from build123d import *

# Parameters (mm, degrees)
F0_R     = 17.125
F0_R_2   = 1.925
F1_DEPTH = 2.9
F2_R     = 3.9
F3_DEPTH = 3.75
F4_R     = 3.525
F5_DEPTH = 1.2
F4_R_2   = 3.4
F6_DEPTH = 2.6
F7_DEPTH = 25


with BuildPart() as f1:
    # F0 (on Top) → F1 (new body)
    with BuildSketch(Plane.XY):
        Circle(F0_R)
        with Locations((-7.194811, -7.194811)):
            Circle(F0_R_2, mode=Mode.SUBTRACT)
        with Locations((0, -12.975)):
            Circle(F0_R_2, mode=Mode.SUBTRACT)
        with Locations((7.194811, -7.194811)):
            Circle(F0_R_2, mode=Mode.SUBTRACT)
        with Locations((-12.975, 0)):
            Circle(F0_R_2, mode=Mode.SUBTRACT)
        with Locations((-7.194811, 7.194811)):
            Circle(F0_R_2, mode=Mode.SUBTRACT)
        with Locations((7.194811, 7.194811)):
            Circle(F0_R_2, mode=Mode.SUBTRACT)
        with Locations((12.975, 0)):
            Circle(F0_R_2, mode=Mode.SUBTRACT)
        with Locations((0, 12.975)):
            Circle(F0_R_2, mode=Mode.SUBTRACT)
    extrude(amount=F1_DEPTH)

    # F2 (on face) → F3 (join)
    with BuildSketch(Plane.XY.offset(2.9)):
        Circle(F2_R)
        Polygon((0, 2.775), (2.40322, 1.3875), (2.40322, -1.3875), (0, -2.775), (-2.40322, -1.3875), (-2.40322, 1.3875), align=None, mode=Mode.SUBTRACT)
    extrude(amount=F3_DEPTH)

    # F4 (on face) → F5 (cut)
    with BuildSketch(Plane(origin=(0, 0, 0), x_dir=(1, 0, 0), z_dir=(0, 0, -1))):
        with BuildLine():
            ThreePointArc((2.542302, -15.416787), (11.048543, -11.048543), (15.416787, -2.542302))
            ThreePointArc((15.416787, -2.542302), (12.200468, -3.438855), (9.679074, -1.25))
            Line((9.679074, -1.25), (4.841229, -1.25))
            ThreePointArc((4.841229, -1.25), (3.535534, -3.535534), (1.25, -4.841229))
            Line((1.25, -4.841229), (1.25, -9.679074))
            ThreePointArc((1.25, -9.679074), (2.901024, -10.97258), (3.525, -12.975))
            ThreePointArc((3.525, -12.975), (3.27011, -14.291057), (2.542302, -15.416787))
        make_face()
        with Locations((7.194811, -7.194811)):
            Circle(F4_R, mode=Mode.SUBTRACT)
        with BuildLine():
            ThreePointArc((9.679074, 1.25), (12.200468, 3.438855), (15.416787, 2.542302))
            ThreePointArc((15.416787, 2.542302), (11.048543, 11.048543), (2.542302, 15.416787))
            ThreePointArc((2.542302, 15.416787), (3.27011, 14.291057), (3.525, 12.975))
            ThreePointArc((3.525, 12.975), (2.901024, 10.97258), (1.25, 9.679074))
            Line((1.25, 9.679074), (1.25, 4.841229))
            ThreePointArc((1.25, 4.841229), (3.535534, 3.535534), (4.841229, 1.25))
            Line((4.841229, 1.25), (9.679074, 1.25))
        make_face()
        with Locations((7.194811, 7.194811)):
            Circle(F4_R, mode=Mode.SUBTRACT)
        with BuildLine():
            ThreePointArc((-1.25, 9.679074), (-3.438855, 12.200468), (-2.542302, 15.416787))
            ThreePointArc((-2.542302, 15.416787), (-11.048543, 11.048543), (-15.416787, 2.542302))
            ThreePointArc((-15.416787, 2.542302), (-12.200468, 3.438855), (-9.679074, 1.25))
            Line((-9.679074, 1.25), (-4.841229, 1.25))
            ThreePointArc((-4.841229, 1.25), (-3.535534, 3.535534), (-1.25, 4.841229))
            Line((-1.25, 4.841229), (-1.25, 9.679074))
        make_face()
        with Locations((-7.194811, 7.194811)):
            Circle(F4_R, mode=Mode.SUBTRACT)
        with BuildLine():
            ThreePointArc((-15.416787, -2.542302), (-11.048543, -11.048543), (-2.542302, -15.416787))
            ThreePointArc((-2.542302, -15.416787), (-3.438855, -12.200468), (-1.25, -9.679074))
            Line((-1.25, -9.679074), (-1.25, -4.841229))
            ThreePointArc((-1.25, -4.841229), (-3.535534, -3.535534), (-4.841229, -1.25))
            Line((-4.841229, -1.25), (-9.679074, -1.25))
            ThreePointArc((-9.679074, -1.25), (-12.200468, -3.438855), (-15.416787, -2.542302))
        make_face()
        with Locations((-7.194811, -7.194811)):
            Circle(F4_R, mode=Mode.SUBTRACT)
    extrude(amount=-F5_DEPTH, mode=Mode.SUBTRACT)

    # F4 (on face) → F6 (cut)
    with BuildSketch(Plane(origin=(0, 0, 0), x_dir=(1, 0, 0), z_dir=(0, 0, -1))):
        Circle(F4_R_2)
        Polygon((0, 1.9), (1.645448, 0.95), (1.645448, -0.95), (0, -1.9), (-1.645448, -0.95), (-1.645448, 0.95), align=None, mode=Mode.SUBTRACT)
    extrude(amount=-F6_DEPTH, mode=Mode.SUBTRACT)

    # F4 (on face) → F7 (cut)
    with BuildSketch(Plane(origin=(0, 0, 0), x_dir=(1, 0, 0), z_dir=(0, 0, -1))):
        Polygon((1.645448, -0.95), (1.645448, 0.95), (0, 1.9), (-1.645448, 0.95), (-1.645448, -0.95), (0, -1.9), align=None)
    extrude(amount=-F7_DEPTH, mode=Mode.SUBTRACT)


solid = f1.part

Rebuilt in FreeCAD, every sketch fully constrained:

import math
import FreeCAD as App
import Part
import Sketcher

V = App.Vector
Q = App.Units.Quantity


def add_polygon(sketch, points):
    """Adds a closed chain of lines whose ends are joined by coincident constraints."""
    first, n = sketch.GeometryCount, len(points)
    for a, b in zip(points, points[1:] + points[:1]):
        sketch.addGeometry(Part.LineSegment(App.Vector(*a, 0), App.Vector(*b, 0)), False)
    for i in range(n):
        sketch.addConstraint(Sketcher.Constraint("Coincident", first + i, 2, first + (i + 1) % n, 1))

doc = App.newDocument("Part")
body = doc.addObject("PartDesign::Body", "Body")

sketch1 = body.newObject("Sketcher::SketchObject", "Sketch")
sketch1.AttachmentSupport = (doc.getObject("XY_Plane"), [""])
sketch1.MapMode = "FlatFace"
sketch1.addGeometry([
    Part.Circle(V(0, 0, 0), V(0, 0, 1), 17.1),
    Part.Circle(V(0, -13, 0), V(0, 0, 1), 1.9),
    Part.Circle(V(-7.2, -7.2, 0), V(0, 0, 1), 1.9),
    Part.Circle(V(7.2, -7.2, 0), V(0, 0, 1), 1.9),
    Part.Circle(V(-13, 0, 0), V(0, 0, 1), 1.9),
    Part.Circle(V(-7.2, 7.2, 0), V(0, 0, 1), 1.9),
    Part.Circle(V(0, 13, 0), V(0, 0, 1), 1.9),
    Part.Circle(V(7.2, 7.2, 0), V(0, 0, 1), 1.9),
    Part.Circle(V(13, 0, 0), V(0, 0, 1), 1.9),
], False)
sketch1.addConstraint([
    Sketcher.Constraint("Coincident", 0, 3, -1, 1),
    Sketcher.Constraint("Equal", 1, 2),
    Sketcher.Constraint("Equal", 2, 3),
    Sketcher.Constraint("Equal", 3, 4),
    Sketcher.Constraint("Equal", 4, 5),
    Sketcher.Constraint("Equal", 5, 6),
    Sketcher.Constraint("Equal", 6, 7),
    Sketcher.Constraint("Equal", 7, 8),
    Sketcher.Constraint("Symmetric", 3, 3, 5, 3, -1, 1),
    Sketcher.Constraint("Symmetric", 1, 3, 6, 3, -1, 1),
    Sketcher.Constraint("Symmetric", 2, 3, 7, 3, -1, 1),
    Sketcher.Constraint("Symmetric", 4, 3, 8, 3, -1, 1),
    Sketcher.Constraint("Symmetric", 2, 3, 3, 3, -2),
    Sketcher.Constraint("PointOnObject", 1, 3, -2),
    Sketcher.Constraint("PointOnObject", 4, 3, -1),
    Sketcher.Constraint("Diameter", 0, Q("34.25 mm")),
    Sketcher.Constraint("Diameter", 1, Q("3.85 mm")),
    Sketcher.Constraint("DistanceY", 1, 3, -1, 1, Q("12.975 mm")),
    Sketcher.Constraint("DistanceX", 4, 3, -1, 1, Q("12.975 mm")),
    Sketcher.Constraint("DistanceX", 2, 3, -1, 1, Q("7.194811 mm")),
    Sketcher.Constraint("DistanceY", 2, 3, -1, 1, Q("7.194811 mm")),
])
pad1 = body.newObject("PartDesign::Pad", "Pad")
pad1.Profile = sketch1
pad1.Length = 2.9

sketch2 = body.newObject("Sketcher::SketchObject", "Sketch001")
sketch2.AttachmentSupport = (doc.getObject("XY_Plane"), [""])
sketch2.MapMode = "FlatFace"
sketch2.AttachmentOffset = App.Placement(V(0, 0, 2.9), App.Rotation())
sketch2.addGeometry(Part.Circle(V(0, 0, 0), V(0, 0, 1), 3.9), False)
add_polygon(sketch2, [(-2.4, 1.4), (0, 2.8), (2.4, 1.4), (2.4, -1.4), (0, -2.8), (-2.4, -1.4)])
sketch2.addConstraint([
    Sketcher.Constraint("Vertical", 3),
    Sketcher.Constraint("Vertical", 6),
    Sketcher.Constraint("Coincident", 0, 3, -1, 1),
    Sketcher.Constraint("Symmetric", 1, 2, 4, 2, -1, 1),
    Sketcher.Constraint("Symmetric", 2, 2, 5, 2, -1, 1),
    Sketcher.Constraint("PointOnObject", 1, 2, -2),
    Sketcher.Constraint("Parallel", 1, 4),
    Sketcher.Constraint("Horizontal", 3, 2, 5, 2),
    Sketcher.Constraint("Diameter", 0, Q("7.8 mm")),
    Sketcher.Constraint("Angle", 1, Q("30.000005 deg")),
    Sketcher.Constraint("DistanceY", 3, 2, 3, 1, Q("2.775 mm")),
    Sketcher.Constraint("DistanceY", 4, 2, 1, 2, Q("5.55 mm")),
])
pad2 = body.newObject("PartDesign::Pad", "Pad001")
pad2.Profile = sketch2
pad2.Length = 3.75

sketch3 = body.newObject("Sketcher::SketchObject", "Sketch002")
sketch3.AttachmentSupport = (doc.getObject("XY_Plane"), [""])
sketch3.MapMode = "FlatFace"
sketch3.addGeometry([
    Part.ArcOfCircle(Part.Circle(V(0, 0, 0), V(0, 0, 1), 15.6), math.radians(9), math.radians(81)),
    Part.ArcOfCircle(Part.Circle(V(13, 0, 0), V(0, 0, 1), 3.5), math.radians(46), math.radians(159)),
    Part.LineSegment(V(9.7, 1.2, 0), V(4.8, 1.2, 0)),
    Part.ArcOfCircle(Part.Circle(V(0, 0, 0), V(0, 0, 1), 5), math.radians(14), math.radians(76)),
    Part.LineSegment(V(1.2, 4.8, 0), V(1.2, 9.7, 0)),
    Part.ArcOfCircle(Part.Circle(V(0, 13, 0), V(0, 0, 1), 3.5), math.radians(-69), math.radians(0)),
    Part.ArcOfCircle(Part.Circle(V(0, 13, 0), V(0, 0, 1), 3.5), math.radians(0), math.radians(44)),
    Part.Circle(V(7.2, 7.2, 0), V(0, 0, 1), 3.5),
    Part.ArcOfCircle(Part.Circle(V(13, 0, 0), V(0, 0, 1), 3.5), math.radians(-159), math.radians(-46)),
    Part.ArcOfCircle(Part.Circle(V(0, 0, 0), V(0, 0, 1), 15.6), math.radians(-81), math.radians(-9)),
    Part.ArcOfCircle(Part.Circle(V(0, -13, 0), V(0, 0, 1), 3.5), math.radians(-44), math.radians(0)),
    Part.ArcOfCircle(Part.Circle(V(0, -13, 0), V(0, 0, 1), 3.5), math.radians(0), math.radians(69)),
    Part.LineSegment(V(1.2, -9.7, 0), V(1.2, -4.8, 0)),
    Part.ArcOfCircle(Part.Circle(V(0, 0, 0), V(0, 0, 1), 5), math.radians(-76), math.radians(-14)),
    Part.LineSegment(V(4.8, -1.2, 0), V(9.7, -1.2, 0)),
    Part.Circle(V(7.2, -7.2, 0), V(0, 0, 1), 3.5),
    Part.ArcOfCircle(Part.Circle(V(0, -13, 0), V(0, 0, 1), 3.5), math.radians(111), math.radians(224)),
    Part.ArcOfCircle(Part.Circle(V(0, 0, 0), V(0, 0, 1), 15.6), math.radians(-171), math.radians(-99)),
    Part.ArcOfCircle(Part.Circle(V(-13, 0, 0), V(0, 0, 1), 3.5), math.radians(-134), math.radians(-21)),
    Part.LineSegment(V(-9.7, -1.2, 0), V(-4.8, -1.2, 0)),
    Part.ArcOfCircle(Part.Circle(V(0, 0, 0), V(0, 0, 1), 5), math.radians(-166), math.radians(-104)),
    Part.LineSegment(V(-1.2, -4.8, 0), V(-1.2, -9.7, 0)),
    Part.Circle(V(-7.2, -7.2, 0), V(0, 0, 1), 3.5),
    Part.ArcOfCircle(Part.Circle(V(0, 0, 0), V(0, 0, 1), 15.6), math.radians(99), math.radians(171)),
    Part.ArcOfCircle(Part.Circle(V(0, 13, 0), V(0, 0, 1), 3.5), math.radians(136), math.radians(249)),
    Part.LineSegment(V(-1.2, 9.7, 0), V(-1.2, 4.8, 0)),
    Part.ArcOfCircle(Part.Circle(V(0, 0, 0), V(0, 0, 1), 5), math.radians(104), math.radians(166)),
    Part.LineSegment(V(-4.8, 1.2, 0), V(-9.7, 1.2, 0)),
    Part.ArcOfCircle(Part.Circle(V(-13, 0, 0), V(0, 0, 1), 3.5), math.radians(21), math.radians(134)),
    Part.Circle(V(-7.2, 7.2, 0), V(0, 0, 1), 3.5),
], False)
sketch3.addConstraint([
    Sketcher.Constraint("Coincident", 0, 1, 1, 1),
    Sketcher.Constraint("Coincident", 1, 2, 2, 1),
    Sketcher.Constraint("Coincident", 2, 2, 3, 1),
    Sketcher.Constraint("Coincident", 3, 2, 4, 1),
    Sketcher.Constraint("Coincident", 4, 2, 5, 1),
    Sketcher.Constraint("Tangent", 5, 2, 6, 1),
    Sketcher.Constraint("Coincident", 6, 2, 0, 2),
    Sketcher.Constraint("Coincident", 8, 2, 9, 2),
    Sketcher.Constraint("Coincident", 9, 1, 10, 1),
    Sketcher.Constraint("Tangent", 10, 2, 11, 1),
    Sketcher.Constraint("Coincident", 11, 2, 12, 1),
    Sketcher.Constraint("Coincident", 12, 2, 13, 1),
    Sketcher.Constraint("Coincident", 13, 2, 14, 1),
    Sketcher.Constraint("Coincident", 14, 2, 8, 1),
    Sketcher.Constraint("Coincident", 16, 2, 17, 2),
    Sketcher.Constraint("Coincident", 17, 1, 18, 1),
    Sketcher.Constraint("Coincident", 18, 2, 19, 1),
    Sketcher.Constraint("Coincident", 19, 2, 20, 1),
    Sketcher.Constraint("Coincident", 20, 2, 21, 1),
    Sketcher.Constraint("Coincident", 21, 2, 16, 1),
    Sketcher.Constraint("Coincident", 23, 1, 24, 1),
    Sketcher.Constraint("Coincident", 24, 2, 25, 1),
    Sketcher.Constraint("Coincident", 25, 2, 26, 1),
    Sketcher.Constraint("Coincident", 26, 2, 27, 1),
    Sketcher.Constraint("Coincident", 27, 2, 28, 1),
    Sketcher.Constraint("Coincident", 28, 2, 23, 2),
    Sketcher.Constraint("Horizontal", 2),
    Sketcher.Constraint("Vertical", 4),
    Sketcher.Constraint("Vertical", 12),
    Sketcher.Constraint("Horizontal", 14),
    Sketcher.Constraint("Horizontal", 19),
    Sketcher.Constraint("Vertical", 21),
    Sketcher.Constraint("Vertical", 25),
    Sketcher.Constraint("Horizontal", 27),
    Sketcher.Constraint("Coincident", 0, 3, -1, 1),
    Sketcher.Constraint("Coincident", 3, 3, -1, 1),
    Sketcher.Constraint("Coincident", 9, 3, -1, 1),
    Sketcher.Constraint("Coincident", 13, 3, -1, 1),
    Sketcher.Constraint("Coincident", 17, 3, -1, 1),
    Sketcher.Constraint("Coincident", 20, 3, -1, 1),
    Sketcher.Constraint("Coincident", 23, 3, -1, 1),
    Sketcher.Constraint("Coincident", 26, 3, -1, 1),
    Sketcher.Constraint("Coincident", 8, 3, 1, 3),
    Sketcher.Constraint("Coincident", 16, 3, 10, 3),
    Sketcher.Constraint("Coincident", 24, 3, 5, 3),
    Sketcher.Constraint("Coincident", 28, 3, 18, 3),
    Sketcher.Constraint("Equal", 1, 5),
    Sketcher.Constraint("Equal", 5, 7),
    Sketcher.Constraint("Equal", 7, 8),
    Sketcher.Constraint("Equal", 0, 9),
    Sketcher.Constraint("Equal", 6, 10),
    Sketcher.Constraint("Equal", 8, 11),
    Sketcher.Constraint("Equal", 3, 13),
    Sketcher.Constraint("Equal", 11, 15),
    Sketcher.Constraint("Equal", 15, 16),
    Sketcher.Constraint("Equal", 9, 17),
    Sketcher.Constraint("Equal", 16, 18),
    Sketcher.Constraint("Equal", 13, 20),
    Sketcher.Constraint("Equal", 18, 22),
    Sketcher.Constraint("Equal", 17, 23),
    Sketcher.Constraint("Equal", 22, 24),
    Sketcher.Constraint("Equal", 20, 26),
    Sketcher.Constraint("Equal", 24, 28),
    Sketcher.Constraint("Equal", 28, 29),
    Sketcher.Constraint("Symmetric", 5, 3, 10, 3, -1, 1),
    Sketcher.Constraint("Symmetric", 1, 3, 18, 3, -1, 1),
    Sketcher.Constraint("Symmetric", 7, 3, 22, 3, -1, 1),
    Sketcher.Constraint("Symmetric", 15, 3, 29, 3, -1, 1),
    Sketcher.Constraint("Symmetric", 11, 2, 24, 2, -1, 1),
    Sketcher.Constraint("Symmetric", 15, 3, 22, 3, -2),
    Sketcher.Constraint("Symmetric", 14, 2, 18, 2, -2),
    Sketcher.Constraint("Symmetric", 11, 2, 21, 2, -2),
    Sketcher.Constraint("Horizontal", 24, 3, 5, 2),
    Sketcher.Constraint("Horizontal", 16, 3, 10, 2),
    Sketcher.Constraint("Horizontal", 4, 2, 24, 2),
    Sketcher.Constraint("Horizontal", 2, 2, 26, 2),
    Sketcher.Constraint("Vertical", 2, 2, 13, 2),
    Sketcher.Constraint("Equal", 27, 4),
    Sketcher.Constraint("Diameter", 7, Q("7.05 mm")),
    Sketcher.Constraint("DistanceY", 13, 2, 2, 2, Q("2.5 mm")),
    Sketcher.Constraint("DistanceX", 20, 2, 12, 2, Q("2.5 mm")),
    Sketcher.Constraint("DistanceX", -1, 1, 1, 3, Q("12.975 mm")),
    Sketcher.Constraint("Radius", 0, Q("15.625002 mm")),
    Sketcher.Constraint("Radius", 3, Q("4.999998 mm")),
    Sketcher.Constraint("DistanceX", -1, 1, 7, 3, Q("7.194811 mm")),
    Sketcher.Constraint("DistanceY", -1, 1, 7, 3, Q("7.194811 mm")),
])
pocket1 = body.newObject("PartDesign::Pocket", "Pocket")
pocket1.Profile = sketch3
pocket1.Length = 1.2
pocket1.Reversed = True

sketch4 = body.newObject("Sketcher::SketchObject", "Sketch003")
sketch4.AttachmentSupport = (doc.getObject("XY_Plane"), [""])
sketch4.MapMode = "FlatFace"
sketch4.addGeometry(Part.Circle(V(0, 0, 0), V(0, 0, 1), 3.4), False)
add_polygon(sketch4, [(-1.6, -0.9), (0, -1.9), (1.6, -0.9), (1.6, 0.9), (0, 1.9), (-1.6, 0.9)])
sketch4.addConstraint([
    Sketcher.Constraint("Vertical", 3),
    Sketcher.Constraint("Vertical", 6),
    Sketcher.Constraint("Coincident", 0, 3, -1, 1),
    Sketcher.Constraint("Symmetric", 1, 2, 4, 2, -1, 1),
    Sketcher.Constraint("Symmetric", 2, 2, 5, 2, -1, 1),
    Sketcher.Constraint("PointOnObject", 1, 2, -2),
    Sketcher.Constraint("Parallel", 1, 4),
    Sketcher.Constraint("Horizontal", 3, 2, 5, 2),
    Sketcher.Constraint("Diameter", 0, Q("6.8 mm")),
    Sketcher.Constraint("Angle", 1, Q("-30.000004 deg")),
    Sketcher.Constraint("DistanceY", 3, 1, 3, 2, Q("1.9 mm")),
    Sketcher.Constraint("Distance", 1, Q("1.9 mm")),
])
pocket2 = body.newObject("PartDesign::Pocket", "Pocket001")
pocket2.Profile = sketch4
pocket2.Length = 2.6
pocket2.Reversed = True

sketch5 = body.newObject("Sketcher::SketchObject", "Sketch004")
sketch5.AttachmentSupport = (doc.getObject("XY_Plane"), [""])
sketch5.MapMode = "FlatFace"
add_polygon(sketch5, [(1.6, 0.9), (1.6, -0.9), (0, -1.9), (-1.6, -0.9), (-1.6, 0.9), (0, 1.9)])
sketch5.addConstraint([
    Sketcher.Constraint("Vertical", 0),
    Sketcher.Constraint("Vertical", 3),
    Sketcher.Constraint("Symmetric", 0, 2, 3, 2, -1, 1),
    Sketcher.Constraint("Symmetric", 1, 2, 4, 2, -1, 1),
    Sketcher.Constraint("PointOnObject", 1, 2, -2),
    Sketcher.Constraint("Parallel", 2, 5),
    Sketcher.Constraint("Horizontal", 0, 2, 2, 2),
    Sketcher.Constraint("Angle", 1, Q("-149.999996 deg")),
    Sketcher.Constraint("DistanceY", 0, 2, 0, 1, Q("1.9 mm")),
    Sketcher.Constraint("Distance", 1, Q("1.9 mm")),
])
pocket3 = body.newObject("PartDesign::Pocket", "Pocket002")
pocket3.Profile = sketch5
pocket3.Length = 25
pocket3.Reversed = True

doc.recompute()
